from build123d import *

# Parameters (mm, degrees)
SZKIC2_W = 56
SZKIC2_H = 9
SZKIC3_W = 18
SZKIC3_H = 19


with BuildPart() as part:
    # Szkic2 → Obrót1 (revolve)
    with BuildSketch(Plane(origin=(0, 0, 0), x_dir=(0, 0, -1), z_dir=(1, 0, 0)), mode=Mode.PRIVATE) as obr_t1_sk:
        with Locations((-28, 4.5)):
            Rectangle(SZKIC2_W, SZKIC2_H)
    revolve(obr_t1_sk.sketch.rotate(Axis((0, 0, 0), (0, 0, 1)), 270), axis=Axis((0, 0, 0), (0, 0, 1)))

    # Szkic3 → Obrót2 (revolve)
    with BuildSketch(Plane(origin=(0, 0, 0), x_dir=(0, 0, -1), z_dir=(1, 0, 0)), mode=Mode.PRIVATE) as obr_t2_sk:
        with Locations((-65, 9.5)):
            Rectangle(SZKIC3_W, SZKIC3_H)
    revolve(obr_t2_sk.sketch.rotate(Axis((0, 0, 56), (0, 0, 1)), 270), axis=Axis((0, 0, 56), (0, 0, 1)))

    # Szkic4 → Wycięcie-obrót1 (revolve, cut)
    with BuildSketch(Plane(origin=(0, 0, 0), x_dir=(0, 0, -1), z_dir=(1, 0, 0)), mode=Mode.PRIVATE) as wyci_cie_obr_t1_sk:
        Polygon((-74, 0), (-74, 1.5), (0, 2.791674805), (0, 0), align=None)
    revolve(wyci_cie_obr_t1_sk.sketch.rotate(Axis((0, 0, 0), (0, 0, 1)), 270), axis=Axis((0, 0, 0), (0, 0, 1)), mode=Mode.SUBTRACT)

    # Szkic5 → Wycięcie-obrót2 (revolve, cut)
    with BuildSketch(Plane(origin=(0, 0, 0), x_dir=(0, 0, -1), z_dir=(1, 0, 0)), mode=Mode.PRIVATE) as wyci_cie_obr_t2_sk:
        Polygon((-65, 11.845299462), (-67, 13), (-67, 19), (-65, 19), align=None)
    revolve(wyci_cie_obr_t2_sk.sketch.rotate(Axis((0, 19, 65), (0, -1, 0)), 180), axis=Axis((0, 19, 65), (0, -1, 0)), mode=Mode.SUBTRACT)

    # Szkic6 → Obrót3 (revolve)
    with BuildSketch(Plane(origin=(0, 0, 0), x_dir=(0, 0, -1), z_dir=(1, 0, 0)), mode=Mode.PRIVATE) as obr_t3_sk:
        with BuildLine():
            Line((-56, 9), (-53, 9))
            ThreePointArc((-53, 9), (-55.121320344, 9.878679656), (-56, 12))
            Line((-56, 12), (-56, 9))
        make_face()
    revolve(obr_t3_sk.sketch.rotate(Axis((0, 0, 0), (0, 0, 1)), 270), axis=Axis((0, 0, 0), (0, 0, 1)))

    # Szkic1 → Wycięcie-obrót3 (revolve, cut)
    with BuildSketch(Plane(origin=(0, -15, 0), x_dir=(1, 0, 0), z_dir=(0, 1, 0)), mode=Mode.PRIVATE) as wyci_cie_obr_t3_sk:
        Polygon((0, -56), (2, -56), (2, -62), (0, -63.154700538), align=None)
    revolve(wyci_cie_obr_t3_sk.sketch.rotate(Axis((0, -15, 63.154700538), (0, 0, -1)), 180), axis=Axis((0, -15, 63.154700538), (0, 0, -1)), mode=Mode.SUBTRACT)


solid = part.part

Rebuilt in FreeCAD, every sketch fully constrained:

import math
import FreeCAD as App
import Part
import Sketcher
from FreeCAD import Vector
Q = App.Units.Quantity

doc = App.newDocument("Part")
params = doc.addObject("Spreadsheet::Sheet", "Params")
for row, (alias, value) in enumerate([
    ("sketch1_width", "9 mm"),
    ("sketch1_height", "56 mm"),
    ("revolution_angle", "360 deg"),
    ("sketch2_width", "19 mm"),
    ("sketch2_height", "18 mm"),
    ("revolution2_angle", "360 deg"),
    ("sketch3_height", "74 mm"),
    ("sketch3_width", "1.5 mm"),
    ("groove_angle", "360 deg"),
    ("sketch4_width", "6 mm"),
    ("sketch4_height", "2 mm"),
    ("groove2_angle", "360 deg"),
    ("sketch5_radius", "3 mm"),
    ("revolution3_angle", "360 deg"),
    ("sketch6_width", "2 mm"),
    ("sketch6_height", "6 mm"),
    ("groove3_angle", "360 deg"),
], start=1):
    params.set(f"A{row}", alias)
    params.set(f"B{row}", "=" + value)
    params.setAlias(f"B{row}", alias)

body = doc.addObject("PartDesign::Body", "Body")

# Sketch on YZ plane
sketch1 = body.newObject("Sketcher::SketchObject", "Sketch")
sketch1.AttachmentSupport = (doc.getObject("YZ_Plane"), [""])
sketch1.MapMode = "FlatFace"
sketch1.addGeometry([
    Part.LineSegment(Vector(9, 56, 0), Vector(0, 56, 0)),
    Part.LineSegment(Vector(0, 56, 0), Vector(0, 0, 0)),
    Part.LineSegment(Vector(0, 0, 0), Vector(9, 0, 0)),
    Part.LineSegment(Vector(9, 0, 0), Vector(9, 56, 0)),
], False)
sketch1.addConstraint([
    Sketcher.Constraint("Coincident", 0, 2, 1, 1),
    Sketcher.Constraint("Coincident", 1, 2, 2, 1),
    Sketcher.Constraint("Coincident", 2, 2, 3, 1),
    Sketcher.Constraint("Coincident", 3, 2, 0, 1),
    Sketcher.Constraint("Horizontal", 0),
    Sketcher.Constraint("Vertical", 1),
    Sketcher.Constraint("Horizontal", 2),
    Sketcher.Constraint("Vertical", 3),
    Sketcher.Constraint("Coincident", 1, 2, -1, 1),
    Sketcher.Constraint("DistanceX", 0, 2, 0, 1, Q("9 mm")),
    Sketcher.Constraint("DistanceY", 1, 2, 1, 1, Q("56 mm")),
])
sketch1.setExpression("Constraints[9]", "Params.sketch1_width")
sketch1.setExpression("Constraints[10]", "Params.sketch1_height")
revolution = body.newObject("PartDesign::Revolution", "Revolution")
revolution.Profile = sketch1
revolution.ReferenceAxis = (sketch1, ["V_Axis"])
revolution.setExpression("Angle", "Params.revolution_angle")

# Sketch on YZ plane
sketch2 = body.newObject("Sketcher::SketchObject", "Sketch001")
sketch2.AttachmentSupport = (doc.getObject("YZ_Plane"), [""])
sketch2.MapMode = "FlatFace"
sketch2.addGeometry([
    Part.LineSegment(Vector(19, 74, 0), Vector(0, 74, 0)),
    Part.LineSegment(Vector(0, 74, 0), Vector(0, 56, 0)),
    Part.LineSegment(Vector(0, 56, 0), Vector(19, 56, 0)),
    Part.LineSegment(Vector(19, 56, 0), Vector(19, 74, 0)),
], False)
sketch2.addConstraint([
    Sketcher.Constraint("Coincident", 0, 2, 1, 1),
    Sketcher.Constraint("Coincident", 1, 2, 2, 1),
    Sketcher.Constraint("Coincident", 2, 2, 3, 1),
    Sketcher.Constraint("Coincident", 3, 2, 0, 1),
    Sketcher.Constraint("Horizontal", 0),
    Sketcher.Constraint("Vertical", 1),
    Sketcher.Constraint("Horizontal", 2),
    Sketcher.Constraint("Vertical", 3),
    Sketcher.Constraint("PointOnObject", 0, 2, -2),
    Sketcher.Constraint("DistanceX", 0, 2, 0, 1, Q("19 mm")),
    Sketcher.Constraint("DistanceY", 1, 2, 1, 1, Q("18 mm")),
    Sketcher.Constraint("DistanceY", -1, 1, 0, 2, Q("74 mm")),
])
sketch2.setExpression("Constraints[9]", "Params.sketch2_width")
sketch2.setExpression("Constraints[10]", "Params.sketch2_height")
revolution2 = body.newObject("PartDesign::Revolution", "Revolution001")
revolution2.Profile = sketch2
revolution2.ReferenceAxis = (sketch2, ["V_Axis"])
revolution2.setExpression("Angle", "Params.revolution2_angle")

# Sketch on YZ plane
sketch3 = body.newObject("Sketcher::SketchObject", "Sketch002")
sketch3.AttachmentSupport = (doc.getObject("YZ_Plane"), [""])
sketch3.MapMode = "FlatFace"
sketch3.addGeometry([
    Part.LineSegment(Vector(1.5, 74, 0), Vector(0, 74, 0)),
    Part.LineSegment(Vector(0, 74, 0), Vector(0, 0, 0)),
    Part.LineSegment(Vector(0, 0, 0), Vector(2.791675, 0, 0)),
    Part.LineSegment(Vector(2.791675, 0, 0), Vector(1.5, 74, 0)),
], False)
sketch3.addConstraint([
    Sketcher.Constraint("Coincident", 0, 2, 1, 1),
    Sketcher.Constraint("Coincident", 1, 2, 2, 1),
    Sketcher.Constraint("Coincident", 2, 2, 3, 1),
    Sketcher.Constraint("Coincident", 3, 2, 0, 1),
    Sketcher.Constraint("Horizontal", 0),
    Sketcher.Constraint("Vertical", 1),
    Sketcher.Constraint("Horizontal", 2),
    Sketcher.Constraint("Coincident", 1, 2, -1, 1),
    Sketcher.Constraint("DistanceY", 1, 2, 1, 1, Q("74 mm")),
    Sketcher.Constraint("Angle", 3, Q("91 deg")),
    Sketcher.Constraint("DistanceX", 0, 2, 0, 1, Q("1.5 mm")),
])
sketch3.setExpression("Constraints[8]", "Params.sketch3_height")
sketch3.setExpression("Constraints[10]", "Params.sketch3_width")
groove = body.newObject("PartDesign::Groove", "Groove")
groove.Profile = sketch3
groove.ReferenceAxis = (sketch3, ["V_Axis"])
groove.setExpression("Angle", "Params.groove_angle")

# Sketch on YZ plane
sketch4 = body.newObject("Sketcher::SketchObject", "Sketch003")
sketch4.AttachmentSupport = (doc.getObject("YZ_Plane"), [""])
sketch4.MapMode = "FlatFace"
sketch4.addGeometry([
    Part.LineSegment(Vector(13, 67, 0), Vector(11.845299, 65, 0)),
    Part.LineSegment(Vector(11.845299, 65, 0), Vector(19, 65, 0)),
    Part.LineSegment(Vector(19, 65, 0), Vector(19, 67, 0)),
    Part.LineSegment(Vector(19, 67, 0), Vector(13, 67, 0)),
], False)
sketch4.addGeometry(Part.LineSegment(Vector(19, 65, 0), Vector(11.845299, 65, 0)), True)  # axis
sketch4.addConstraint([
    Sketcher.Constraint("Coincident", 0, 2, 1, 1),
    Sketcher.Constraint("Coincident", 1, 2, 2, 1),
    Sketcher.Constraint("Coincident", 2, 2, 3, 1),
    Sketcher.Constraint("Coincident", 3, 2, 0, 1),
    Sketcher.Constraint("Horizontal", 1),
    Sketcher.Constraint("Vertical", 2),
    Sketcher.Constraint("Horizontal", 3),
    Sketcher.Constraint("Horizontal", 4),
    Sketcher.Constraint("Coincident", 4, 1, 1, 2),
    Sketcher.Constraint("Equal", 1, 4),
    Sketcher.Constraint("DistanceX", 3, 2, 3, 1, Q("6 mm")),
    Sketcher.Constraint("DistanceY", 2, 1, 2, 2, Q("2 mm")),
    Sketcher.Constraint("Angle", 0, Q("-120 deg")),
    Sketcher.Constraint("DistanceY", -1, 1, 0, 2, Q("65 mm")),
    Sketcher.Constraint("DistanceX", -1, 1, 1, 2, Q("19 mm")),
])
sketch4.setExpression("Constraints[10]", "Params.sketch4_width")
sketch4.setExpression("Constraints[11]", "Params.sketch4_height")
groove2 = body.newObject("PartDesign::Groove", "Groove001")
groove2.Profile = sketch4
groove2.ReferenceAxis = (sketch4, ["Axis0"])
groove2.setExpression("Angle", "Params.groove2_angle")

# Sketch on YZ plane
sketch5 = body.newObject("Sketcher::SketchObject", "Sketch004")
sketch5.AttachmentSupport = (doc.getObject("YZ_Plane"), [""])
sketch5.MapMode = "FlatFace"
sketch5.addGeometry([
    Part.LineSegment(Vector(9, 56, 0), Vector(9, 53, 0)),
    Part.ArcOfCircle(Part.Circle(Vector(12, 53, 0), Vector(0, 0, 1), 3), math.radians(90), math.radians(180)),
    Part.LineSegment(Vector(12, 56, 0), Vector(9, 56, 0)),
], False)
sketch5.addConstraint([
    Sketcher.Constraint("Tangent", 0, 2, 1, 2),
    Sketcher.Constraint("Tangent", 1, 1, 2, 1),
    Sketcher.Constraint("Coincident", 2, 2, 0, 1),
    Sketcher.Constraint("Vertical", 0),
    Sketcher.Constraint("Horizontal", 2),
    Sketcher.Constraint("Radius", 1, Q("3 mm")),
    Sketcher.Constraint("DistanceX", -1, 1, 1, 3, Q("12 mm")),
    Sketcher.Constraint("DistanceY", -1, 1, 1, 3, Q("53 mm")),
])
sketch5.setExpression("Constraints[5]", "Params.sketch5_radius")
revolution3 = body.newObject("PartDesign::Revolution", "Revolution002")
revolution3.Profile = sketch5
revolution3.ReferenceAxis = (sketch5, ["V_Axis"])
revolution3.setExpression("Angle", "Params.revolution3_angle")

# Sketch on XZ plane
sketch6 = body.newObject("Sketcher::SketchObject", "Sketch005")
sketch6.AttachmentSupport = (doc.getObject("XZ_Plane"), [""])
sketch6.MapMode = "FlatFace"
sketch6.AttachmentOffset = App.Placement(Vector(0, 0, 15), App.Rotation())
sketch6.addGeometry([
    Part.LineSegment(Vector(2, 56, 0), Vector(0, 56, 0)),
    Part.LineSegment(Vector(0, 56, 0), Vector(0, 63.154701, 0)),
    Part.LineSegment(Vector(0, 63.154701, 0), Vector(2, 62, 0)),
    Part.LineSegment(Vector(2, 62, 0), Vector(2, 56, 0)),
], False)
sketch6.addConstraint([
    Sketcher.Constraint("Coincident", 0, 2, 1, 1),
    Sketcher.Constraint("Coincident", 1, 2, 2, 1),
    Sketcher.Constraint("Coincident", 2, 2, 3, 1),
    Sketcher.Constraint("Coincident", 3, 2, 0, 1),
    Sketcher.Constraint("Horizontal", 0),
    Sketcher.Constraint("Vertical", 1),
    Sketcher.Constraint("Vertical", 3),
    Sketcher.Constraint("PointOnObject", 0, 2, -2),
    Sketcher.Constraint("DistanceX", 0, 2, 0, 1, Q("2 mm")),
    Sketcher.Constraint("DistanceY", 3, 2, 3, 1, Q("6 mm")),
    Sketcher.Constraint("Angle", 2, Q("-30 deg")),
    Sketcher.Constraint("DistanceY", -1, 1, 0, 2, Q("56 mm")),
])
sketch6.setExpression("Constraints[8]", "Params.sketch6_width")
sketch6.setExpression("Constraints[9]", "Params.sketch6_height")
groove3 = body.newObject("PartDesign::Groove", "Groove002")
groove3.Profile = sketch6
groove3.ReferenceAxis = (sketch6, ["V_Axis"])
groove3.setExpression("Angle", "Params.groove3_angle")

doc.recompute()
